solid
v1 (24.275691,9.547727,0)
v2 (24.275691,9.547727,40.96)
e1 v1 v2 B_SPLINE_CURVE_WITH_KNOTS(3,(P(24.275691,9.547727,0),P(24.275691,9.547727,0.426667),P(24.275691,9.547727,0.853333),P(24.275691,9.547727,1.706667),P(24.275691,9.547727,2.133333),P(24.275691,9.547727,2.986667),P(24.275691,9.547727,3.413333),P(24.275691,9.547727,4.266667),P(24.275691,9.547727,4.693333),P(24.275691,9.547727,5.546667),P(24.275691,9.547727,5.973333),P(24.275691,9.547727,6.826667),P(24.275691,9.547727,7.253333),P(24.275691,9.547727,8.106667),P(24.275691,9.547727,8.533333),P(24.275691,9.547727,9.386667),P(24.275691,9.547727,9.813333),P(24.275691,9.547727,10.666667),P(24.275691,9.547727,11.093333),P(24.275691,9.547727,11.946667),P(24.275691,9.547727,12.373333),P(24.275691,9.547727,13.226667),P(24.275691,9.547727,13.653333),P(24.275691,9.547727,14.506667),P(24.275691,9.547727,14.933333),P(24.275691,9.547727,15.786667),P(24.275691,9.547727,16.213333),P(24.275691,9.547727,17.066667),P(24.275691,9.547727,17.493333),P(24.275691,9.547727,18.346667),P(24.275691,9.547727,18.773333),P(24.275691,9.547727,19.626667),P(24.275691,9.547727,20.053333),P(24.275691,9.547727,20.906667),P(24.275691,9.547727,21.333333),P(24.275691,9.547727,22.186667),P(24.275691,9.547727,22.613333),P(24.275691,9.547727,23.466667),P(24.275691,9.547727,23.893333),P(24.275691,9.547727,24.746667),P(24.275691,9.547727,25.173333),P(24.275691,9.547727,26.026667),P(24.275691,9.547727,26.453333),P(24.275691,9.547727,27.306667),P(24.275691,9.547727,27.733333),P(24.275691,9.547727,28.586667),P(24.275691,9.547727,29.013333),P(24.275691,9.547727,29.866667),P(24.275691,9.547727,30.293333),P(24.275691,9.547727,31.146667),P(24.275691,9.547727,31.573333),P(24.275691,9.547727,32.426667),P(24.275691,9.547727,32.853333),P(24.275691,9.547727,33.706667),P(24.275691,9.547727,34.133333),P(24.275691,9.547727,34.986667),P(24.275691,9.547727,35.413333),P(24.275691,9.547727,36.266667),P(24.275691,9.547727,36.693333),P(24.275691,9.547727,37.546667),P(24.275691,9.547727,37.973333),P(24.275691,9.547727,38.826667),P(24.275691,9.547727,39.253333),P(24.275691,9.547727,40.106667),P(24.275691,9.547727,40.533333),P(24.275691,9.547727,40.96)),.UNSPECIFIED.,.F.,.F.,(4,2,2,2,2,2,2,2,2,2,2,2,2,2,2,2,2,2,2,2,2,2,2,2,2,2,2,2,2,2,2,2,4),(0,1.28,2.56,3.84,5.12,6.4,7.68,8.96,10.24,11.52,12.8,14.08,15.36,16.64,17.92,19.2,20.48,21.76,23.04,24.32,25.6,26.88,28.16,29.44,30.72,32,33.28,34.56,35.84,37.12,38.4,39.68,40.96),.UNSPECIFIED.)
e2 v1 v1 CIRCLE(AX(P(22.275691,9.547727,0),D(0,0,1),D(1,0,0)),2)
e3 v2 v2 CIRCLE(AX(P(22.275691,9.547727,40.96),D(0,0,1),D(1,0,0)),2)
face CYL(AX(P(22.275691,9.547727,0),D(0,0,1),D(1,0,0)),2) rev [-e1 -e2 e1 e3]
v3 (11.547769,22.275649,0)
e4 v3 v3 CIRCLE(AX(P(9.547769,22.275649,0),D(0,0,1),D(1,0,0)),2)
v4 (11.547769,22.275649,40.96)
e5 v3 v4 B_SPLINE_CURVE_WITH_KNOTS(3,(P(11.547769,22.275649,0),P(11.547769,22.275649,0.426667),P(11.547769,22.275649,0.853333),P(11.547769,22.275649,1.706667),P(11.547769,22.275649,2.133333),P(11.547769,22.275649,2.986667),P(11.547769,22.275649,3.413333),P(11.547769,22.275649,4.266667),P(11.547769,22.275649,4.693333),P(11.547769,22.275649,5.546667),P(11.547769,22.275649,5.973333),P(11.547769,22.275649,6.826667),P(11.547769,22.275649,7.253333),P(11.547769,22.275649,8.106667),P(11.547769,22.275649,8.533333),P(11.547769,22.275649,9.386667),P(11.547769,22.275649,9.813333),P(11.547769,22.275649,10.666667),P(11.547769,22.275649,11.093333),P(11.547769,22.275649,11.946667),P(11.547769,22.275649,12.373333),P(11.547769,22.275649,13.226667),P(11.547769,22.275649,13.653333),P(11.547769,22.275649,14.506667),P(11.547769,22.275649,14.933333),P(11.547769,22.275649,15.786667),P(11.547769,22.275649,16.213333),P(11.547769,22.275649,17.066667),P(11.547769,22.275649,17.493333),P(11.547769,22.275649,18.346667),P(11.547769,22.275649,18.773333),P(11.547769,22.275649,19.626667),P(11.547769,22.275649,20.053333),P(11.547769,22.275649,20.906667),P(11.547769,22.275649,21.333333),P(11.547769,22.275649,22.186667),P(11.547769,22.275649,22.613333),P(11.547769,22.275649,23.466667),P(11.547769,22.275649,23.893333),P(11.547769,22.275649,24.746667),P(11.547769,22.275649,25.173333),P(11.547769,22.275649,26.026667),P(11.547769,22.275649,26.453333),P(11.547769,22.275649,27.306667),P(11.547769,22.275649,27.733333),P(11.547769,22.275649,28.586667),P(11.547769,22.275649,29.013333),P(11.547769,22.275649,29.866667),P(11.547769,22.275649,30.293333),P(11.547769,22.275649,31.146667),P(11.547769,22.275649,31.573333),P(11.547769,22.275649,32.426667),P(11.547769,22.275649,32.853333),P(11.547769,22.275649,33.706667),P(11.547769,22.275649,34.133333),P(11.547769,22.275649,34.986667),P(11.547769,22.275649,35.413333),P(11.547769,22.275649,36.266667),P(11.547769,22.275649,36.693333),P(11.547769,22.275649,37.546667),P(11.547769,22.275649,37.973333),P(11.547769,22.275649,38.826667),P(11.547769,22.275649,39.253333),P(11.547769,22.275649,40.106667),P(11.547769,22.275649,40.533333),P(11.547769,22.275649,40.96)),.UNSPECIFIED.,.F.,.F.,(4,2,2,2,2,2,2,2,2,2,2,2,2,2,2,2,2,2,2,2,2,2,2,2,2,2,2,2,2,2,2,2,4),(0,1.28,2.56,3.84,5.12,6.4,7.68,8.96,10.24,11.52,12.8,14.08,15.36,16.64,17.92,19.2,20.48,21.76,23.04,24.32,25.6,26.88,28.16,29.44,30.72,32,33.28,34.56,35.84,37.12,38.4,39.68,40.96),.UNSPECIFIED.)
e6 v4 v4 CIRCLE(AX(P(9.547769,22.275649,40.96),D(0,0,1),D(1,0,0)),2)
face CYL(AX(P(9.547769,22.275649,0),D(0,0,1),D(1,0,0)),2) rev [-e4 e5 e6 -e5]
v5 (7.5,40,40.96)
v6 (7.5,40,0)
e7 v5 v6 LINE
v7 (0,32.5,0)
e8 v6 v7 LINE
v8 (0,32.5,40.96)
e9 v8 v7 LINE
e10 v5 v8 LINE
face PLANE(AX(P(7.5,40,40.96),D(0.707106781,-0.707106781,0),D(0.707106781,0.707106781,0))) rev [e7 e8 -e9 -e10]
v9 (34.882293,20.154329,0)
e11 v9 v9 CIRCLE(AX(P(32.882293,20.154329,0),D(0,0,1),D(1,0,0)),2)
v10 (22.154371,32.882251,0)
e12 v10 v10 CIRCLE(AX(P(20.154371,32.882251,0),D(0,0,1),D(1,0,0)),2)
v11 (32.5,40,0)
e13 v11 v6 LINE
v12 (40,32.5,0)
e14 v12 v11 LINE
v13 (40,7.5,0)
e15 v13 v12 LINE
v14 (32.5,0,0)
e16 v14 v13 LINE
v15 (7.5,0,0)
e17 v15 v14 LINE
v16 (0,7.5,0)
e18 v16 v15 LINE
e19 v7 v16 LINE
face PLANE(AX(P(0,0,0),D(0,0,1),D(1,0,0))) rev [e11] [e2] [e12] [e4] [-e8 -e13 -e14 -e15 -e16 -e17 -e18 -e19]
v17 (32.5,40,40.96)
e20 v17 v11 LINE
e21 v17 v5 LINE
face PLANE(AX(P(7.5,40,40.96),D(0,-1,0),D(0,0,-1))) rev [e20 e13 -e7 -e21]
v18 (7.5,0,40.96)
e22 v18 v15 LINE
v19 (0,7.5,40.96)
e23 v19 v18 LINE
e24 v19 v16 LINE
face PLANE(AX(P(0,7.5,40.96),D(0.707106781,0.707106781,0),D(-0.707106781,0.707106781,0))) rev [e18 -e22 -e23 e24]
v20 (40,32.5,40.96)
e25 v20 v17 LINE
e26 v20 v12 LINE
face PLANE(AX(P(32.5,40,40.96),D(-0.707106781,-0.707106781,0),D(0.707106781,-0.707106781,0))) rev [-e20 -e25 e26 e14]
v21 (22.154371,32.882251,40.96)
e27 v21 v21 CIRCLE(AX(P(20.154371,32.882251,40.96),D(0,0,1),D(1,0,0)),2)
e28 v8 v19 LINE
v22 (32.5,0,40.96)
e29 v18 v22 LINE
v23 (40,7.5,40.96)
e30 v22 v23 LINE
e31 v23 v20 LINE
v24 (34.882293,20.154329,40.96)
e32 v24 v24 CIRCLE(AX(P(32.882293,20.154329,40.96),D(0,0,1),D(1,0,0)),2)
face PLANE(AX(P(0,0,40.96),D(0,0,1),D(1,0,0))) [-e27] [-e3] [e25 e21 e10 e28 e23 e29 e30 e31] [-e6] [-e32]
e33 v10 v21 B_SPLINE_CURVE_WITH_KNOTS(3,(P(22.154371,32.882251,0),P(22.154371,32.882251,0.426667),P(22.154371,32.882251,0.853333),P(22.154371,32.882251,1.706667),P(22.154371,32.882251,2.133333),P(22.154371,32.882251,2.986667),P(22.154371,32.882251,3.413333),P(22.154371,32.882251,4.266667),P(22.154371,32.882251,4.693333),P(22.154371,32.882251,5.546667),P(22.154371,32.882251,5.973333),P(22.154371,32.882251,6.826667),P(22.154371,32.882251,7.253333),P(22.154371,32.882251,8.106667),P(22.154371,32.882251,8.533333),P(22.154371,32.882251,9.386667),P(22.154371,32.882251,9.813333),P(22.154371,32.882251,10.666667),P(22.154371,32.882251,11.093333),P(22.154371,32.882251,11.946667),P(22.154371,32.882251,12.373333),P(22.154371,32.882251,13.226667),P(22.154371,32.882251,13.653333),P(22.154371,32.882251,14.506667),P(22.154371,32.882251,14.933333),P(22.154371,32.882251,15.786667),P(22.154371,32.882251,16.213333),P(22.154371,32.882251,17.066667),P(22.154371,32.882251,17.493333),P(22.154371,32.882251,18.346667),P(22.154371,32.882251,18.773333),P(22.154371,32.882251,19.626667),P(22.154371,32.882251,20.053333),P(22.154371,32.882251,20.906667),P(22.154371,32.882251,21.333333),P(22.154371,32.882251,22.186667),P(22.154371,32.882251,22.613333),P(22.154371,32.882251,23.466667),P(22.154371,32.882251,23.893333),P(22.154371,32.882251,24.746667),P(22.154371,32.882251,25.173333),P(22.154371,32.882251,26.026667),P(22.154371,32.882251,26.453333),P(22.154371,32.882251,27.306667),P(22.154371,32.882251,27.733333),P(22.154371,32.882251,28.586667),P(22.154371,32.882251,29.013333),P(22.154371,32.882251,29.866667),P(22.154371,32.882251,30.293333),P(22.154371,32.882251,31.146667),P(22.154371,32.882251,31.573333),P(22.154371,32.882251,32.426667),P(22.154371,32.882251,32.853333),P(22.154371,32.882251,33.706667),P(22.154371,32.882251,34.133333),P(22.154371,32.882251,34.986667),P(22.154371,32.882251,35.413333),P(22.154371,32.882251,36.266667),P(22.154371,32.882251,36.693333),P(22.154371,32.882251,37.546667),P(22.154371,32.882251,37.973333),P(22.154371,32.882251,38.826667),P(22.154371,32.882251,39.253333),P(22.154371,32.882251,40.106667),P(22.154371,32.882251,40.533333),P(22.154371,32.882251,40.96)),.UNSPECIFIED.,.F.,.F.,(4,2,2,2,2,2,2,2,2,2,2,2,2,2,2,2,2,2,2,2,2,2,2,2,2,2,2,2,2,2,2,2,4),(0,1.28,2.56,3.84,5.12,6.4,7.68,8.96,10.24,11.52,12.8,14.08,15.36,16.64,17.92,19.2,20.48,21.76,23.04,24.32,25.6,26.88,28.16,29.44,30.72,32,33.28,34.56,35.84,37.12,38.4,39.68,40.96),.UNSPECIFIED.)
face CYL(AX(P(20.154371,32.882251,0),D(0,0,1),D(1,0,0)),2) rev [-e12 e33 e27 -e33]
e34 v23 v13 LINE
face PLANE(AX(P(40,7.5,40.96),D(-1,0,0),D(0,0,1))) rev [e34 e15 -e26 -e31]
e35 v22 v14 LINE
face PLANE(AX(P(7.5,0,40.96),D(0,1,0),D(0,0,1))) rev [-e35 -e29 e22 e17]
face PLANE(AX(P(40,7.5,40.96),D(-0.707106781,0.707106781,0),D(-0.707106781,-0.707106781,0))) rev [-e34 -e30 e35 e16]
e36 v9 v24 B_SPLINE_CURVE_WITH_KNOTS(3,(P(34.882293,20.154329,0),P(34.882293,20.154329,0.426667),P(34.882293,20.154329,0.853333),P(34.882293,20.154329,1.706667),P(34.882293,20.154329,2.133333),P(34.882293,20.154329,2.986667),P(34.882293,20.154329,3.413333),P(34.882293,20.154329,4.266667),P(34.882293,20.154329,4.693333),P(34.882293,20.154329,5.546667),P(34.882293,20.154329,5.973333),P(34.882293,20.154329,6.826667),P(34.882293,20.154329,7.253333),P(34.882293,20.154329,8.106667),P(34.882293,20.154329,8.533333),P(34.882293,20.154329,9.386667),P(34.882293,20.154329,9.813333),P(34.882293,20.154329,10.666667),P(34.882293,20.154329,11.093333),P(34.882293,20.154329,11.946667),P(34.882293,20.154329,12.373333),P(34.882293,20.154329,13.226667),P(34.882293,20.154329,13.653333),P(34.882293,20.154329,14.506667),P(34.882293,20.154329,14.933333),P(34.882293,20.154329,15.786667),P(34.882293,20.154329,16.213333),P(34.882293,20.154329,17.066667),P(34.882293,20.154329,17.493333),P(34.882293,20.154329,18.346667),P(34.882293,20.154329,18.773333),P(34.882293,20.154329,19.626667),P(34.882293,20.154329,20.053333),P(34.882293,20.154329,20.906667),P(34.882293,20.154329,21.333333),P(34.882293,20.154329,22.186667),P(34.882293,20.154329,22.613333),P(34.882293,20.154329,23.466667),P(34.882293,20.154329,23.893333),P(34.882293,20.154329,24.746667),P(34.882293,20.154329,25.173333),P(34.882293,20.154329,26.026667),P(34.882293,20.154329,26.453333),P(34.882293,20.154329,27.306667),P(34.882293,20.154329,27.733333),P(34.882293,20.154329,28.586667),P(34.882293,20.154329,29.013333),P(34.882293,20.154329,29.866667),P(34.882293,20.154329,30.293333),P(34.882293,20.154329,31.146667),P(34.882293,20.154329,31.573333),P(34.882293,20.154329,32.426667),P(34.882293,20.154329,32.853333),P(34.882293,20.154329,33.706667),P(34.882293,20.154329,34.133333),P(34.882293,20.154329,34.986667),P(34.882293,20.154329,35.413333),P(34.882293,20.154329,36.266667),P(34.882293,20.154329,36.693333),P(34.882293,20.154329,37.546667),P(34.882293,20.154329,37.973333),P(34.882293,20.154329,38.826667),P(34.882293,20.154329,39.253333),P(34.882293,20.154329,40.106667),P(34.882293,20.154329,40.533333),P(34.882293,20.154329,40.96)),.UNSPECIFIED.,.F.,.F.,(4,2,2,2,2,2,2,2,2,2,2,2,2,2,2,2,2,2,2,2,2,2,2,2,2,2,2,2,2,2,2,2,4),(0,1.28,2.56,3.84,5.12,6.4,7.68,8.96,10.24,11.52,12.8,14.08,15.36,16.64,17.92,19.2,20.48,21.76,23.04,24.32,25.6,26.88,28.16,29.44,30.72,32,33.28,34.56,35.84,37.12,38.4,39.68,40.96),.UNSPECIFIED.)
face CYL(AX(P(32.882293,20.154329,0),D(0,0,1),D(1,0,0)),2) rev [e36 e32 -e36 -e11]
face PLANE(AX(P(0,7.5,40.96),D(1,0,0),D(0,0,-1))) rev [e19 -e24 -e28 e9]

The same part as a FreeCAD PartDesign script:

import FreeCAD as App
import Part
import Sketcher

V = App.Vector

doc = App.newDocument("Part")
body = doc.addObject("PartDesign::Body", "Body")

sketch1 = body.newObject("Sketcher::SketchObject", "Sketch")
sketch1.AttachmentSupport = (doc.getObject("XY_Plane"), [""])
sketch1.MapMode = "FlatFace"
sketch1.addGeometry([
    Part.LineSegment(V(8, 40, 0), V(0, 32, 0)),
    Part.LineSegment(V(0, 32, 0), V(0, 8, 0)),
    Part.LineSegment(V(0, 8, 0), V(8, 0, 0)),
    Part.LineSegment(V(8, 0, 0), V(32, 0, 0)),
    Part.LineSegment(V(32, 0, 0), V(40, 8, 0)),
    Part.LineSegment(V(40, 8, 0), V(40, 32, 0)),
    Part.LineSegment(V(40, 32, 0), V(32, 40, 0)),
    Part.LineSegment(V(32, 40, 0), V(8, 40, 0)),
], False)
sketch1.addConstraint([
    Sketcher.Constraint("Coincident", 0, 2, 1, 1),
    Sketcher.Constraint("Coincident", 1, 2, 2, 1),
    Sketcher.Constraint("Coincident", 2, 2, 3, 1),
    Sketcher.Constraint("Coincident", 3, 2, 4, 1),
    Sketcher.Constraint("Coincident", 4, 2, 5, 1),
    Sketcher.Constraint("Coincident", 5, 2, 6, 1),
    Sketcher.Constraint("Coincident", 6, 2, 7, 1),
    Sketcher.Constraint("Coincident", 7, 2, 0, 1),
    Sketcher.Constraint("Vertical", 1),
    Sketcher.Constraint("Horizontal", 3),
    Sketcher.Constraint("Vertical", 5),
    Sketcher.Constraint("Horizontal", 7),
    Sketcher.Constraint("PointOnObject", 0, 2, -2),
    Sketcher.Constraint("PointOnObject", 2, 2, -1),
    Sketcher.Constraint("Perpendicular", 0, 2),
    Sketcher.Constraint("Perpendicular", 2, 4),
    Sketcher.Constraint("Perpendicular", 4, 6),
    Sketcher.Constraint("Horizontal", 1, 2, 4, 2),
    Sketcher.Constraint("Horizontal", 0, 2, 5, 2),
    Sketcher.Constraint("Vertical", 3, 2, 6, 2),
    Sketcher.Constraint("Vertical", 2, 2, 7, 2),
    Sketcher.Constraint("Equal", 7, 1),
    Sketcher.Constraint("DistanceX", 3, 1, 3, 2, 25.0),
    Sketcher.Constraint("DistanceX", -1, 1, 4, 2, 40.0),
])
pad1 = body.newObject("PartDesign::Pad", "Pad")
pad1.Profile = sketch1
pad1.Length = 40.96

sketch2 = body.newObject("Sketcher::SketchObject", "Sketch001")
sketch2.AttachmentSupport = (doc.getObject("XY_Plane"), [""])
sketch2.MapMode = "FlatFace"
sketch2.AttachmentOffset = App.Placement(V(0, 0, 40.96), App.Rotation())
sketch2.addGeometry([
    Part.Circle(V(20.2, 32.9, 0), V(0, 0, 1), 2),
    Part.Circle(V(9.5, 22.3, 0), V(0, 0, 1), 2),
    Part.Circle(V(22.3, 9.5, 0), V(0, 0, 1), 2),
    Part.Circle(V(32.9, 20.2, 0), V(0, 0, 1), 2),
], False)
sketch2.addConstraint([
    Sketcher.Constraint("Equal", 0, 1),
    Sketcher.Constraint("Equal", 1, 2),
    Sketcher.Constraint("Equal", 2, 3),
    Sketcher.Constraint("Diameter", 0, 4.0),
    Sketcher.Constraint("DistanceX", 1, 3, 0, 3, 10.606602),
    Sketcher.Constraint("DistanceY", 1, 3, 0, 3, 10.606602),
    Sketcher.Constraint("DistanceX", 2, 3, 3, 3, 10.606602),
    Sketcher.Constraint("DistanceY", 2, 3, 3, 3, 10.606602),
    Sketcher.Constraint("DistanceX", -1, 1, 0, 3, 20.154371),
    Sketcher.Constraint("DistanceY", -1, 1, 0, 3, 32.882251),
    Sketcher.Constraint("DistanceX", -1, 1, 2, 3, 22.275691),
    Sketcher.Constraint("DistanceY", -1, 1, 3, 3, 20.154329),
])
pocket1 = body.newObject("PartDesign::Pocket", "Pocket")
pocket1.Profile = sketch2
pocket1.Type = "ThroughAll"

doc.recompute()
